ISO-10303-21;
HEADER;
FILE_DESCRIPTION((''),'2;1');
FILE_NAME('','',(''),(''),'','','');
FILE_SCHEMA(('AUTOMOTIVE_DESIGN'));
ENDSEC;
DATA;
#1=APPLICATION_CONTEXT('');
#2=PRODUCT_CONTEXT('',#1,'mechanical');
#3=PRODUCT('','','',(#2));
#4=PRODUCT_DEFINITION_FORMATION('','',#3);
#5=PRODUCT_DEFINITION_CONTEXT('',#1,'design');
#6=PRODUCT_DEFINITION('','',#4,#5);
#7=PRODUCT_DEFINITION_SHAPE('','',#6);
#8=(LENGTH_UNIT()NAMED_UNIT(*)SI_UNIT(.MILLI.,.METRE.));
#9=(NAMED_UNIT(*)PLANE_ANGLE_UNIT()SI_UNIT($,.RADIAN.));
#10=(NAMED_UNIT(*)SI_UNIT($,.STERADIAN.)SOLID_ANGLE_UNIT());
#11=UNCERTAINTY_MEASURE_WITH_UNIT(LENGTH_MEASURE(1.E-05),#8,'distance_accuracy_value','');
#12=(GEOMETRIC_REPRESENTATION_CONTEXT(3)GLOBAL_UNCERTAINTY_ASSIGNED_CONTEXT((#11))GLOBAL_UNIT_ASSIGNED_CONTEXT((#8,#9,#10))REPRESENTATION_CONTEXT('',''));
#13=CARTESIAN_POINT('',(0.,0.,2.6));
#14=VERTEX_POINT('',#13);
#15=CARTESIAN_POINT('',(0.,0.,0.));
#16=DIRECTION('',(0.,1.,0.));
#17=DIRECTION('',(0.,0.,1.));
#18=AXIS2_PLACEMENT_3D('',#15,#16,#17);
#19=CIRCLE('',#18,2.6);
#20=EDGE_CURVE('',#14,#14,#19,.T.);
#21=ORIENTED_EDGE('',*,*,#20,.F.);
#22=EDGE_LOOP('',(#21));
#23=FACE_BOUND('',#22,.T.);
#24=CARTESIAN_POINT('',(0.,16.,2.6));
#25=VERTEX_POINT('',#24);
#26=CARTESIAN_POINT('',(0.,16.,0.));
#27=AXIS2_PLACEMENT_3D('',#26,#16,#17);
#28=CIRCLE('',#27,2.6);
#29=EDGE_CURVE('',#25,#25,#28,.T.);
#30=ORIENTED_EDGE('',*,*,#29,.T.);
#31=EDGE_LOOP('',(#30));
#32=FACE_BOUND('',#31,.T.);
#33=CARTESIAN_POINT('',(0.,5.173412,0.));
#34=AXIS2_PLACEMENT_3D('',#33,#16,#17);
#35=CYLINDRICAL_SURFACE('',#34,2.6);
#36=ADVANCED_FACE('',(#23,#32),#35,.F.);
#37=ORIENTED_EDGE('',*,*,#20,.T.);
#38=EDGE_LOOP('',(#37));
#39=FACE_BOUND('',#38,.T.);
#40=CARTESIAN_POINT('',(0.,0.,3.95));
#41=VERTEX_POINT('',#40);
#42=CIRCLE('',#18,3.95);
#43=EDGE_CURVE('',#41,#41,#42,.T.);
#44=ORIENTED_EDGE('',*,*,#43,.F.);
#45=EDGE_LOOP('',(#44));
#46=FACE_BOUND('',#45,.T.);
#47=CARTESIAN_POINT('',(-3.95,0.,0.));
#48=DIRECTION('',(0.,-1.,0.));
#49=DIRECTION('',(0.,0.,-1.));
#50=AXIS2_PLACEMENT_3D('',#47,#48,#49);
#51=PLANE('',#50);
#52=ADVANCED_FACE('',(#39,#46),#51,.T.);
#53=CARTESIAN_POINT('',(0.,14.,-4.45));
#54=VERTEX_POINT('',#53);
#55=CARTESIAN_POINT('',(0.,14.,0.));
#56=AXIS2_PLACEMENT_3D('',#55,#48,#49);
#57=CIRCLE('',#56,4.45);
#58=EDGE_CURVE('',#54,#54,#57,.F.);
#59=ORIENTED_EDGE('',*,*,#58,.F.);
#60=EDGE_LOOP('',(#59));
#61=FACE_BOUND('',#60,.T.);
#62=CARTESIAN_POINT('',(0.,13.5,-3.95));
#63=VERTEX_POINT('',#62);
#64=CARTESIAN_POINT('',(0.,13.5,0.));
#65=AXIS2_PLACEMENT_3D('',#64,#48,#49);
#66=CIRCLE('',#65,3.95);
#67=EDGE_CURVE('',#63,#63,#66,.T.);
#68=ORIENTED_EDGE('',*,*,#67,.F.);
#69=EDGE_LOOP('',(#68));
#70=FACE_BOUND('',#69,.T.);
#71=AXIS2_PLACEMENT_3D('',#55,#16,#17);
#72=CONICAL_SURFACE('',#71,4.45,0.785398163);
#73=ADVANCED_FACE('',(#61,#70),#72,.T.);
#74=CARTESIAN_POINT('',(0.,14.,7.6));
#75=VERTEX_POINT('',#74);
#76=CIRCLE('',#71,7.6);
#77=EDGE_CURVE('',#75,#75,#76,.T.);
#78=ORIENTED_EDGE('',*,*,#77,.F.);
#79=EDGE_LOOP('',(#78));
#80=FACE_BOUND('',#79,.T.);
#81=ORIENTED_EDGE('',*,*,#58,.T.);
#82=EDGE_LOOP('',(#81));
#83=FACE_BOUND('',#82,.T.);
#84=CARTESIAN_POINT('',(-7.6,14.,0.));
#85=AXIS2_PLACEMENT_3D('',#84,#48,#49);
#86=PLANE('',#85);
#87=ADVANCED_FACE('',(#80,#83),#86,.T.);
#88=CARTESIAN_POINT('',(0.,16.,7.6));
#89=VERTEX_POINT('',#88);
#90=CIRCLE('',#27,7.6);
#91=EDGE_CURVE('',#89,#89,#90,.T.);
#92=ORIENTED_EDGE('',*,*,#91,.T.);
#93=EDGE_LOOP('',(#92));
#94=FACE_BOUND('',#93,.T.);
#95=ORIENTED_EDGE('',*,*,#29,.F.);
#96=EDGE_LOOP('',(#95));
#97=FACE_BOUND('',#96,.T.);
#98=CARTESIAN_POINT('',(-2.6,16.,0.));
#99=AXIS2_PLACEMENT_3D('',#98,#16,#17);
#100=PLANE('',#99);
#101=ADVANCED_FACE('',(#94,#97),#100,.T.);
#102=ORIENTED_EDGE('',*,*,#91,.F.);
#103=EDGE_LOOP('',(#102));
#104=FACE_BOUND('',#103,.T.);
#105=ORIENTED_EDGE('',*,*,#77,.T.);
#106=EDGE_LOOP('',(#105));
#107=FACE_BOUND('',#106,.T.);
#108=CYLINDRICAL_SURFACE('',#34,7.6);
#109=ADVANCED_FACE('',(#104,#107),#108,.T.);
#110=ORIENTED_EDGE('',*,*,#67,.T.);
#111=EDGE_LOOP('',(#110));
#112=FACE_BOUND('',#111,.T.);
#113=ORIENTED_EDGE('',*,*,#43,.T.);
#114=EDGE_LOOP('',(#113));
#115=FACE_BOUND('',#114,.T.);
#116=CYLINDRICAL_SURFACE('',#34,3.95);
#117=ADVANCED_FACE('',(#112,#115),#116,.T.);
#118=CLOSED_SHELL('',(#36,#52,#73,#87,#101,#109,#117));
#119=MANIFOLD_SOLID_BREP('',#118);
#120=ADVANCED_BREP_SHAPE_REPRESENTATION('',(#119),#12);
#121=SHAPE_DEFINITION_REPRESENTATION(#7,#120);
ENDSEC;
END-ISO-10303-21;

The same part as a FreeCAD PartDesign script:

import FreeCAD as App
import Part
import Sketcher

V = App.Vector


def edges_at(feature, points):
    """Names of the edges that pass closest to the given points."""
    edges = feature.Shape.Edges
    near = lambda p: min(range(len(edges)), key=lambda i: edges[i].distToShape(Part.Vertex(*p))[0])
    return sorted({f"Edge{near(p) + 1}" for p in points})

doc = App.newDocument("Part")
params = doc.addObject("Spreadsheet::Sheet", "Params")
for row, (alias, value) in enumerate([
    ("sketch1_width", "5 mm"),
    ("sketch1_height", "16 mm"),
    ("sketch1_height2", "2 mm"),
    ("sketch1_width2", "3.65 mm"),
    ("revolution_angle", "360 deg"),
    ("chamfer_size", "0.5 mm"),
], start=1):
    params.set(f"A{row}", alias)
    params.set(f"B{row}", "=" + value)
    params.setAlias(f"B{row}", alias)

body = doc.addObject("PartDesign::Body", "Body")

sketch1 = body.newObject("Sketcher::SketchObject", "Sketch")
sketch1.AttachmentSupport = (doc.getObject("XY_Plane"), [""])
sketch1.MapMode = "FlatFace"
sketch1.addGeometry([
    Part.LineSegment(V(-2.6, 0, 0), V(-2.6, 16, 0)),
    Part.LineSegment(V(-2.6, 16, 0), V(-7.6, 16, 0)),
    Part.LineSegment(V(-7.6, 16, 0), V(-7.6, 14, 0)),
    Part.LineSegment(V(-7.6, 14, 0), V(-3.95, 14, 0)),
    Part.LineSegment(V(-3.95, 14, 0), V(-3.95, 0, 0)),
    Part.LineSegment(V(-3.95, 0, 0), V(-2.6, 0, 0)),
], False)
sketch1.addConstraint([
    Sketcher.Constraint("Coincident", 0, 2, 1, 1),
    Sketcher.Constraint("Coincident", 1, 2, 2, 1),
    Sketcher.Constraint("Coincident", 2, 2, 3, 1),
    Sketcher.Constraint("Coincident", 3, 2, 4, 1),
    Sketcher.Constraint("Coincident", 4, 2, 5, 1),
    Sketcher.Constraint("Coincident", 5, 2, 0, 1),
    Sketcher.Constraint("Vertical", 0),
    Sketcher.Constraint("Horizontal", 1),
    Sketcher.Constraint("Vertical", 2),
    Sketcher.Constraint("Horizontal", 3),
    Sketcher.Constraint("Vertical", 4),
    Sketcher.Constraint("Horizontal", 5),
    Sketcher.Constraint("PointOnObject", 4, 2, -1),
    Sketcher.Constraint("DistanceX", 1, 2, 1, 1, 5.0),
    Sketcher.Constraint("DistanceY", 0, 1, 0, 2, 16.0),
    Sketcher.Constraint("DistanceY", 2, 2, 2, 1, 2.0),
    Sketcher.Constraint("DistanceX", 3, 1, 3, 2, 3.65),
    Sketcher.Constraint("DistanceX", 0, 2, -1, 1, 2.6),
])
sketch1.setExpression("Constraints[13]", "Params.sketch1_width")
sketch1.setExpression("Constraints[14]", "Params.sketch1_height")
sketch1.setExpression("Constraints[15]", "Params.sketch1_height2")
sketch1.setExpression("Constraints[16]", "Params.sketch1_width2")
revolution = body.newObject("PartDesign::Revolution", "Revolution")
revolution.Profile = sketch1
revolution.ReferenceAxis = (sketch1, ["V_Axis"])
revolution.setExpression("Angle", "Params.revolution_angle")
doc.recompute()

chamfer = body.newObject("PartDesign::Chamfer", "Chamfer")
chamfer.Base = (revolution, edges_at(revolution, [(0, 14, -3.95)]))
chamfer.setExpression("Size", "Params.chamfer_size")

doc.recompute()
